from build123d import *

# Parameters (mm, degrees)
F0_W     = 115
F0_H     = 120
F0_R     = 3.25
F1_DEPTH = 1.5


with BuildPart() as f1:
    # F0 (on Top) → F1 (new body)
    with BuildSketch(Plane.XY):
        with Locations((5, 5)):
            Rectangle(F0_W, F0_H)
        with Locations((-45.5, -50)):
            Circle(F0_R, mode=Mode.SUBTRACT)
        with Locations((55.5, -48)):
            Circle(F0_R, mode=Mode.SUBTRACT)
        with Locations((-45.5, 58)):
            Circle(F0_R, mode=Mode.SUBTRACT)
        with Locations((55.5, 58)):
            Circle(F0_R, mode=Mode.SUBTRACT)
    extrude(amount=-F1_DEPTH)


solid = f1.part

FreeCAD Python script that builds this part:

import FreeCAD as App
import Part
import Sketcher

V = App.Vector

doc = App.newDocument("Part")
body = doc.addObject("PartDesign::Body", "Body")

sketch1 = body.newObject("Sketcher::SketchObject", "Sketch")
sketch1.AttachmentSupport = (doc.getObject("XY_Plane"), [""])
sketch1.MapMode = "FlatFace"
sketch1.addGeometry([
    Part.LineSegment(V(-52.5, 65, 0), V(-52.5, -55, 0)),
    Part.LineSegment(V(-52.5, -55, 0), V(62.5, -55, 0)),
    Part.LineSegment(V(62.5, -55, 0), V(62.5, 65, 0)),
    Part.LineSegment(V(62.5, 65, 0), V(-52.5, 65, 0)),
    Part.Circle(V(-45.5, -50, 0), V(0, 0, 1), 3.2),
    Part.Circle(V(55.5, -48, 0), V(0, 0, 1), 3.2),
    Part.Circle(V(-45.5, 58, 0), V(0, 0, 1), 3.2),
    Part.Circle(V(55.5, 58, 0), V(0, 0, 1), 3.2),
], False)
sketch1.addConstraint([
    Sketcher.Constraint("Coincident", 0, 2, 1, 1),
    Sketcher.Constraint("Coincident", 1, 2, 2, 1),
    Sketcher.Constraint("Coincident", 2, 2, 3, 1),
    Sketcher.Constraint("Coincident", 3, 2, 0, 1),
    Sketcher.Constraint("Vertical", 0),
    Sketcher.Constraint("Horizontal", 1),
    Sketcher.Constraint("Vertical", 2),
    Sketcher.Constraint("Horizontal", 3),
    Sketcher.Constraint("Equal", 4, 5),
    Sketcher.Constraint("Equal", 5, 6),
    Sketcher.Constraint("Equal", 6, 7),
    Sketcher.Constraint("Horizontal", 6, 3, 7, 3),
    Sketcher.Constraint("Vertical", 4, 3, 6, 3),
    Sketcher.Constraint("Vertical", 5, 3, 7, 3),
    Sketcher.Constraint("Diameter", 4, 6.5),
    Sketcher.Constraint("DistanceX", 1, 1, 1, 2, 115.0),
    Sketcher.Constraint("DistanceY", 0, 2, 0, 1, 120.0),
    Sketcher.Constraint("DistanceY", 4, 3, -1, 1, 50.0),
    Sketcher.Constraint("DistanceY", 5, 3, -1, 1, 48.0),
    Sketcher.Constraint("DistanceY", -1, 1, 6, 3, 58.0),
    Sketcher.Constraint("DistanceY", 0, 2, -1, 1, 55.0),
    Sketcher.Constraint("DistanceX", 4, 3, 5, 3, 101.0),
    Sketcher.Constraint("DistanceX", 0, 2, 4, 3, 7.0),
    Sketcher.Constraint("DistanceX", 4, 3, -1, 1, 45.5),
])
pad1 = body.newObject("PartDesign::Pad", "Pad")
pad1.Profile = sketch1
pad1.Length = 1.5
pad1.Reversed = True

doc.recompute()
